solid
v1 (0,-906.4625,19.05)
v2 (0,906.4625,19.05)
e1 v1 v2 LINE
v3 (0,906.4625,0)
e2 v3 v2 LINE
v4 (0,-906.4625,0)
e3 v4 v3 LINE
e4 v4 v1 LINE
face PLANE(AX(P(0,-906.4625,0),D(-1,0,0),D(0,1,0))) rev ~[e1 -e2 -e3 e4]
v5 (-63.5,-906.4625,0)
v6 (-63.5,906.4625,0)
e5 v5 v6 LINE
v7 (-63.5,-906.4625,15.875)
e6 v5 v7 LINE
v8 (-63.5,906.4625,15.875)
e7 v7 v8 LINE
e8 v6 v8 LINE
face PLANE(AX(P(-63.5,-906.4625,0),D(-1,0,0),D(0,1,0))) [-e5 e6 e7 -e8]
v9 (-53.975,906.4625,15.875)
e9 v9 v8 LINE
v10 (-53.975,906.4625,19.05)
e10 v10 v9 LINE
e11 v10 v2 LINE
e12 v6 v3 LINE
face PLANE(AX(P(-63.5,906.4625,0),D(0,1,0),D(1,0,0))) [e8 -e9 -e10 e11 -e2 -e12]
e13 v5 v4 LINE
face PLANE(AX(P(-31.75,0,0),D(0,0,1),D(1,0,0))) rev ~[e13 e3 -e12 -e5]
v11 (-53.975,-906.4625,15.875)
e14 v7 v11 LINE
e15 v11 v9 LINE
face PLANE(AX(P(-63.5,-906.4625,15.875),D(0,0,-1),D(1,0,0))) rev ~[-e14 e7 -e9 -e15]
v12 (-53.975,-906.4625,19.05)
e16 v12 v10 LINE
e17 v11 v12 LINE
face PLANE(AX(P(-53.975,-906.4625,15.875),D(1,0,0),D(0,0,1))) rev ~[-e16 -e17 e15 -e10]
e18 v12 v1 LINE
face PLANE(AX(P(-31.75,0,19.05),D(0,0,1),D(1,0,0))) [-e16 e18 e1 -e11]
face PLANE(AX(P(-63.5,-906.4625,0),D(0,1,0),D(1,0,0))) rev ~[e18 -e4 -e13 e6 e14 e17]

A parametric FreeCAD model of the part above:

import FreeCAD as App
import Part
import Sketcher
Q = App.Units.Quantity

doc = App.newDocument("Part")
body = doc.addObject("PartDesign::Body", "Body")

# Sketch on XY plane
sketch1 = body.newObject("Sketcher::SketchObject", "Sketch")
sketch1.AttachmentSupport = (doc.getObject("XY_Plane"), [""])
sketch1.MapMode = "FlatFace"
sketch1.addGeometry([
    Part.LineSegment(App.Vector(-64, 906, 0), App.Vector(-64, -906, 0)),
    Part.LineSegment(App.Vector(-64, -906, 0), App.Vector(0, -906, 0)),
    Part.LineSegment(App.Vector(0, -906, 0), App.Vector(0, 906, 0)),
    Part.LineSegment(App.Vector(0, 906, 0), App.Vector(-64, 906, 0)),
], False)
sketch1.addConstraint([
    Sketcher.Constraint("Coincident", 0, 2, 1, 1),
    Sketcher.Constraint("Coincident", 1, 2, 2, 1),
    Sketcher.Constraint("Coincident", 2, 2, 3, 1),
    Sketcher.Constraint("Coincident", 3, 2, 0, 1),
    Sketcher.Constraint("Vertical", 0),
    Sketcher.Constraint("Horizontal", 1),
    Sketcher.Constraint("Vertical", 2),
    Sketcher.Constraint("Horizontal", 3),
    Sketcher.Constraint("Symmetric", 1, 2, 2, 2, -1, 1),
    Sketcher.Constraint("DistanceX", 1, 1, 1, 2, Q("2.5 in")),
    Sketcher.Constraint("DistanceY", 0, 2, 0, 1, Q("71.375 in")),
])
pad1 = body.newObject("PartDesign::Pad", "Pad")
pad1.Profile = sketch1
pad1.Length = Q("0.75 in")

# Sketch on XZ plane
sketch2 = body.newObject("Sketcher::SketchObject", "Sketch001")
sketch2.AttachmentSupport = (doc.getObject("XZ_Plane"), [""])
sketch2.MapMode = "FlatFace"
sketch2.AttachmentOffset = App.Placement(App.Vector(0, 0, 35.6875 * 25.4), App.Rotation())
sketch2.addGeometry([
    Part.LineSegment(App.Vector(-63.5, 19.1, 0), App.Vector(-63.5, 15.9, 0)),
    Part.LineSegment(App.Vector(-63.5, 15.9, 0), App.Vector(-54, 15.9, 0)),
    Part.LineSegment(App.Vector(-54, 15.9, 0), App.Vector(-54, 19.1, 0)),
    Part.LineSegment(App.Vector(-54, 19.1, 0), App.Vector(-63.5, 19.1, 0)),
], False)
sketch2.addConstraint([
    Sketcher.Constraint("Coincident", 0, 2, 1, 1),
    Sketcher.Constraint("Coincident", 1, 2, 2, 1),
    Sketcher.Constraint("Coincident", 2, 2, 3, 1),
    Sketcher.Constraint("Coincident", 3, 2, 0, 1),
    Sketcher.Constraint("Vertical", 0),
    Sketcher.Constraint("Horizontal", 1),
    Sketcher.Constraint("Vertical", 2),
    Sketcher.Constraint("Horizontal", 3),
    Sketcher.Constraint("DistanceX", 0, 2, -1, 1, Q("2.5 in")),
    Sketcher.Constraint("DistanceX", 1, 1, 1, 2, Q("0.375 in")),
    Sketcher.Constraint("DistanceY", 0, 2, 0, 1, Q("0.125 in")),
    Sketcher.Constraint("DistanceY", -1, 1, 2, 2, Q("0.75 in")),
])
pocket1 = body.newObject("PartDesign::Pocket", "Pocket")
pocket1.Profile = sketch2
pocket1.Type = "ThroughAll"

doc.recompute()
